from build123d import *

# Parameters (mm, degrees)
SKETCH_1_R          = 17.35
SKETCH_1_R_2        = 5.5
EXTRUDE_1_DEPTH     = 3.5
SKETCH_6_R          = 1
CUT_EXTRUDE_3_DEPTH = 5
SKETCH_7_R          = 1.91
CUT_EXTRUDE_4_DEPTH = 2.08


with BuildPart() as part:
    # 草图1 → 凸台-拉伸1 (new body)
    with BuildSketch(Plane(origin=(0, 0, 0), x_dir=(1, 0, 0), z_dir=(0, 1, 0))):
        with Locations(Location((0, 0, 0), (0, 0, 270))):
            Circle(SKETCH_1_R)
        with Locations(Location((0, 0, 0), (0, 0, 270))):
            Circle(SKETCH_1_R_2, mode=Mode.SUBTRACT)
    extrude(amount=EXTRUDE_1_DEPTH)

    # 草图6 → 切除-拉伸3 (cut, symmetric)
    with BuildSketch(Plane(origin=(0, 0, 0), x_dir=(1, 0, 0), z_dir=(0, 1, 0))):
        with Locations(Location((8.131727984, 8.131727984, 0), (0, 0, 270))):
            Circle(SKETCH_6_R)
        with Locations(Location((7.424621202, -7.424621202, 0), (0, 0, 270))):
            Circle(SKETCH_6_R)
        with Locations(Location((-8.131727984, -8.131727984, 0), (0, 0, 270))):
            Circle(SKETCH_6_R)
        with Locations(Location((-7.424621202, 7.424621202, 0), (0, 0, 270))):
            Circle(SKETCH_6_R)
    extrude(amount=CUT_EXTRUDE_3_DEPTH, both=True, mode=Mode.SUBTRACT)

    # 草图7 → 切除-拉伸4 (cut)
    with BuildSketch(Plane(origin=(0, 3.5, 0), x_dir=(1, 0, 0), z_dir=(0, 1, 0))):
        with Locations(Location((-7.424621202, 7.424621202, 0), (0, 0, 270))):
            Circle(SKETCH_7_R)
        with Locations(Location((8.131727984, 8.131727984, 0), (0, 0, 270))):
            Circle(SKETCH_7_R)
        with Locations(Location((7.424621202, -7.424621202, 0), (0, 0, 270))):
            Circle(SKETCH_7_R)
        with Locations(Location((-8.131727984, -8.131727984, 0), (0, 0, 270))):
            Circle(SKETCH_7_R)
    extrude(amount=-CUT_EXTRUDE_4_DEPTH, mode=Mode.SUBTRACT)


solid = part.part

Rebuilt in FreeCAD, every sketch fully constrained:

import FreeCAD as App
import Part
import Sketcher
from FreeCAD import Vector

doc = App.newDocument("Part")
body = doc.addObject("PartDesign::Body", "Body")

sketch1 = body.newObject("Sketcher::SketchObject", "Sketch")
sketch1.AttachmentSupport = (doc.getObject("XZ_Plane"), [""])
sketch1.MapMode = "FlatFace"
sketch1.addGeometry(Part.Circle(Vector(0, 0, 0), Vector(0, 0, 1), 17.35), False)
sketch1.addGeometry(Part.Circle(Vector(0, 0, 0), Vector(0, 0, 1), 5.5), False)
sketch1.addConstraint(Sketcher.Constraint("Coincident", 0, 3, -1, 1))
sketch1.addConstraint(Sketcher.Constraint("Coincident", 1, 3, -1, 1))
sketch1.addConstraint(Sketcher.Constraint("Diameter", 1, 11.0))
sketch1.addConstraint(Sketcher.Constraint("Diameter", 0, 34.7))
pad1 = body.newObject("PartDesign::Pad", "Pad")
pad1.Profile = sketch1
pad1.Length = 3.5
pad1.Reversed = True

sketch2 = body.newObject("Sketcher::SketchObject", "Sketch001")
sketch2.AttachmentSupport = (doc.getObject("XZ_Plane"), [""])
sketch2.MapMode = "FlatFace"
sketch2.addGeometry(Part.Circle(Vector(8.131728, -8.131728, 0), Vector(0, 0, 1), 1), False)
sketch2.addGeometry(Part.Circle(Vector(7.424621, 7.424621, 0), Vector(0, 0, 1), 1), False)
sketch2.addGeometry(Part.Circle(Vector(-8.131728, 8.131728, 0), Vector(0, 0, 1), 1), False)
sketch2.addGeometry(Part.Circle(Vector(-7.424621, -7.424621, 0), Vector(0, 0, 1), 1), False)
sketch2.addConstraint(Sketcher.Constraint("Equal", 0, 1))
sketch2.addConstraint(Sketcher.Constraint("Equal", 1, 2))
sketch2.addConstraint(Sketcher.Constraint("Equal", 2, 3))
sketch2.addConstraint(Sketcher.Constraint("Symmetric", 0, 3, 2, 3, -1, 1))
sketch2.addConstraint(Sketcher.Constraint("Symmetric", 1, 3, 3, 3, -1, 1))
sketch2.addConstraint(Sketcher.Constraint("Diameter", 0, 2.0))
sketch2.addConstraint(Sketcher.Constraint("DistanceX", -1, 1, 1, 3, 7.424621))
sketch2.addConstraint(Sketcher.Constraint("DistanceY", -1, 1, 1, 3, 7.424621))
sketch2.addConstraint(Sketcher.Constraint("DistanceY", 0, 3, 1, 3, 15.556349))
sketch2.addConstraint(Sketcher.Constraint("DistanceX", 2, 3, 1, 3, 15.556349))
pocket1 = body.newObject("PartDesign::Pocket", "Pocket")
pocket1.Profile = sketch2
pocket1.Length = 10
pocket1.Midplane = True

sketch3 = body.newObject("Sketcher::SketchObject", "Sketch002")
sketch3.AttachmentSupport = (doc.getObject("XZ_Plane"), [""])
sketch3.MapMode = "FlatFace"
sketch3.AttachmentOffset = App.Placement(Vector(0, 0, -3.5), App.Rotation())
sketch3.addGeometry(Part.Circle(Vector(-7.424621, -7.424621, 0), Vector(0, 0, 1), 1.91), False)
sketch3.addGeometry(Part.Circle(Vector(8.131728, -8.131728, 0), Vector(0, 0, 1), 1.91), False)
sketch3.addGeometry(Part.Circle(Vector(7.424621, 7.424621, 0), Vector(0, 0, 1), 1.91), False)
sketch3.addGeometry(Part.Circle(Vector(-8.131728, 8.131728, 0), Vector(0, 0, 1), 1.91), False)
sketch3.addConstraint(Sketcher.Constraint("Equal", 0, 1))
sketch3.addConstraint(Sketcher.Constraint("Equal", 1, 2))
sketch3.addConstraint(Sketcher.Constraint("Equal", 2, 3))
sketch3.addConstraint(Sketcher.Constraint("Symmetric", 0, 3, 2, 3, -1, 1))
sketch3.addConstraint(Sketcher.Constraint("Symmetric", 1, 3, 3, 3, -1, 1))
sketch3.addConstraint(Sketcher.Constraint("Diameter", 0, 3.82))
sketch3.addConstraint(Sketcher.Constraint("DistanceX", 0, 3, -1, 1, 7.424621))
sketch3.addConstraint(Sketcher.Constraint("DistanceY", 0, 3, -1, 1, 7.424621))
sketch3.addConstraint(Sketcher.Constraint("DistanceX", 0, 3, 1, 3, 15.556349))
sketch3.addConstraint(Sketcher.Constraint("DistanceY", 1, 3, 2, 3, 15.556349))
pocket2 = body.newObject("PartDesign::Pocket", "Pocket001")
pocket2.Profile = sketch3
pocket2.Length = 2.08
pocket2.Reversed = True

doc.recompute()
